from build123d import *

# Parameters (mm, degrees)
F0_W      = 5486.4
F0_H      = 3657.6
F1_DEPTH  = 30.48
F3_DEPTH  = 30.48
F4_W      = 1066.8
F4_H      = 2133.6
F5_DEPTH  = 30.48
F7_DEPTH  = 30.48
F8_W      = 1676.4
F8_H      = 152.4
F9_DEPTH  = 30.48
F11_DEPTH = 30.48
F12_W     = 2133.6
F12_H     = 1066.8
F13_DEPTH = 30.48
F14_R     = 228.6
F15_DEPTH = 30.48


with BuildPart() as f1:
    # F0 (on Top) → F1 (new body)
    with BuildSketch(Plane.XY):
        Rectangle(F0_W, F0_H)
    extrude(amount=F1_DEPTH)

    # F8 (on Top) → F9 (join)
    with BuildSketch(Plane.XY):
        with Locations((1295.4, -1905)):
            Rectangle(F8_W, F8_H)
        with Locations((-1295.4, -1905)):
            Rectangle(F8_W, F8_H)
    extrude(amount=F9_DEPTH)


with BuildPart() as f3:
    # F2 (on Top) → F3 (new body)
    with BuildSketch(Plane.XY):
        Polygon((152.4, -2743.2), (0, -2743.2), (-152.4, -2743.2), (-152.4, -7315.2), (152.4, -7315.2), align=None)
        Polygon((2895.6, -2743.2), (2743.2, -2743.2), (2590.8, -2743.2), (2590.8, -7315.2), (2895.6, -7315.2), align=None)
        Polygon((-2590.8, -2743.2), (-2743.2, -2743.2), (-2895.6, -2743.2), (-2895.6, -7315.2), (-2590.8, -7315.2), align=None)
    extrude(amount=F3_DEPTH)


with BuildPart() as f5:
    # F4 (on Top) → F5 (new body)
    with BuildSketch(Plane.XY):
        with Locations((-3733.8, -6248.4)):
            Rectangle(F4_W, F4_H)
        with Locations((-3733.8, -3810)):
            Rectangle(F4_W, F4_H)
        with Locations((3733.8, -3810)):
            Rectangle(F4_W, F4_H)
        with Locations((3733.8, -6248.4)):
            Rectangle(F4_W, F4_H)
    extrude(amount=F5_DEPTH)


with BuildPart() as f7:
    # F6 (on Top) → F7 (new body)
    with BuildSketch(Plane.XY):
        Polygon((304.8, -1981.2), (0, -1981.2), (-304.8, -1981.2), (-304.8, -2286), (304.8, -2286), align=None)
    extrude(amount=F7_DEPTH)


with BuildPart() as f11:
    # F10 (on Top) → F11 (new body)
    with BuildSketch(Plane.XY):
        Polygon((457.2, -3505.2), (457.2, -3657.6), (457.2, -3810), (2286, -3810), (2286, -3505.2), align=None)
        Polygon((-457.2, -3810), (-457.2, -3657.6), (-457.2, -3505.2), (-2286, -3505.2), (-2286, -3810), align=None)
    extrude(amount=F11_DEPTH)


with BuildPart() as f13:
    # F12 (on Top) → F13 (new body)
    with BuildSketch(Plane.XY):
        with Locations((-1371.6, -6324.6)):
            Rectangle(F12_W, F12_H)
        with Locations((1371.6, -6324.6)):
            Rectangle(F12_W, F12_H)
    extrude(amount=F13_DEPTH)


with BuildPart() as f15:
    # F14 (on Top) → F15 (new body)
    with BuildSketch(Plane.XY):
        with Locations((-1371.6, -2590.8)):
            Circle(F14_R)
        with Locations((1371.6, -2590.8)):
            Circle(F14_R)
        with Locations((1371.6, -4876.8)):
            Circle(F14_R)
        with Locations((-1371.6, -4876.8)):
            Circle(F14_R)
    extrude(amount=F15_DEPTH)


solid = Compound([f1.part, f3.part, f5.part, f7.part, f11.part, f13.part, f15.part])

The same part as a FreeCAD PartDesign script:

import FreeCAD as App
import Part
import Sketcher
from FreeCAD import Vector
Q = App.Units.Quantity


def add_polygon(sketch, points):
    """Adds a closed chain of lines whose ends are joined by coincident constraints."""
    first, n = sketch.GeometryCount, len(points)
    for a, b in zip(points, points[1:] + points[:1]):
        sketch.addGeometry(Part.LineSegment(App.Vector(*a, 0), App.Vector(*b, 0)), False)
    for i in range(n):
        sketch.addConstraint(Sketcher.Constraint("Coincident", first + i, 2, first + (i + 1) % n, 1))

doc = App.newDocument("Part")
body = doc.addObject("PartDesign::Body", "Body")

# Sketch on XY plane
sketch1 = body.newObject("Sketcher::SketchObject", "Sketch")
sketch1.AttachmentSupport = (doc.getObject("XY_Plane"), [""])
sketch1.MapMode = "FlatFace"
add_polygon(sketch1, [(-2743, 1829), (-2743, -1829), (2743, -1829), (2743, 1829)])  # lines 0-3
sketch1.addConstraint(Sketcher.Constraint("Vertical", 0))
sketch1.addConstraint(Sketcher.Constraint("Horizontal", 1))
sketch1.addConstraint(Sketcher.Constraint("Vertical", 2))
sketch1.addConstraint(Sketcher.Constraint("Horizontal", 3))
sketch1.addConstraint(Sketcher.Constraint("Symmetric", 0, 2, 2, 2, -1, 1))
sketch1.addConstraint(Sketcher.Constraint("DistanceX", 1, 1, 1, 2, Q("216 in")))
sketch1.addConstraint(Sketcher.Constraint("DistanceY", 0, 2, 0, 1, Q("144 in")))
pad1 = body.newObject("PartDesign::Pad", "Pad")
pad1.Profile = sketch1
pad1.Length = Q("1.2 in")

# Sketch on XY plane
sketch2 = body.newObject("Sketcher::SketchObject", "Sketch001")
sketch2.AttachmentSupport = (doc.getObject("XY_Plane"), [""])
sketch2.MapMode = "FlatFace"
add_polygon(sketch2, [(457, -1829), (457, -1981), (2134, -1981), (2134, -1829)])  # lines 0-3
add_polygon(sketch2, [(-2134, -1829), (-2134, -1981), (-457, -1981), (-457, -1829)])  # lines 4-7
sketch2.addConstraint(Sketcher.Constraint("Vertical", 0))
sketch2.addConstraint(Sketcher.Constraint("Horizontal", 1))
sketch2.addConstraint(Sketcher.Constraint("Vertical", 2))
sketch2.addConstraint(Sketcher.Constraint("Horizontal", 3))
sketch2.addConstraint(Sketcher.Constraint("Vertical", 4))
sketch2.addConstraint(Sketcher.Constraint("Horizontal", 5))
sketch2.addConstraint(Sketcher.Constraint("Vertical", 6))
sketch2.addConstraint(Sketcher.Constraint("Horizontal", 7))
sketch2.addConstraint(Sketcher.Constraint("Symmetric", 1, 2, 4, 2, -2))
sketch2.addConstraint(Sketcher.Constraint("Symmetric", 3, 2, 6, 2, -2))
sketch2.addConstraint(Sketcher.Constraint("DistanceX", 1, 1, 1, 2, Q("66 in")))
sketch2.addConstraint(Sketcher.Constraint("DistanceY", 0, 2, 0, 1, Q("6 in")))
sketch2.addConstraint(Sketcher.Constraint("DistanceX", -1, 1, 0, 2, Q("18 in")))
sketch2.addConstraint(Sketcher.Constraint("DistanceY", 0, 2, -1, 1, Q("78 in")))
pad2 = body.newObject("PartDesign::Pad", "Pad001")
pad2.Profile = sketch2
pad2.Length = Q("1.2 in")
body2 = doc.addObject("PartDesign::Body", "Body001")
body2.AllowCompound = True

# Sketch on XY plane
sketch3 = body2.newObject("Sketcher::SketchObject", "Sketch002")
sketch3.AttachmentSupport = (doc.getObject("XY_Plane001"), [""])
sketch3.MapMode = "FlatFace"
add_polygon(sketch3, [(152, -2743), (-152, -2743), (-152, -7315), (152, -7315)])  # lines 0-3
add_polygon(sketch3, [(2896, -2743), (2591, -2743), (2591, -7315), (2896, -7315)])  # lines 4-7
add_polygon(sketch3, [(-2591, -2743), (-2896, -2743), (-2896, -7315), (-2591, -7315)])  # lines 8-11
sketch3.addConstraint(Sketcher.Constraint("Horizontal", 0))
sketch3.addConstraint(Sketcher.Constraint("Vertical", 1))
sketch3.addConstraint(Sketcher.Constraint("Horizontal", 2))
sketch3.addConstraint(Sketcher.Constraint("Vertical", 3))
sketch3.addConstraint(Sketcher.Constraint("Horizontal", 4))
sketch3.addConstraint(Sketcher.Constraint("Vertical", 5))
sketch3.addConstraint(Sketcher.Constraint("Horizontal", 6))
sketch3.addConstraint(Sketcher.Constraint("Vertical", 7))
sketch3.addConstraint(Sketcher.Constraint("Horizontal", 8))
sketch3.addConstraint(Sketcher.Constraint("Vertical", 9))
sketch3.addConstraint(Sketcher.Constraint("Horizontal", 10))
sketch3.addConstraint(Sketcher.Constraint("Vertical", 11))
sketch3.addConstraint(Sketcher.Constraint("Symmetric", 7, 2, 8, 2, -2))
sketch3.addConstraint(Sketcher.Constraint("Symmetric", 5, 2, 10, 2, -2))
sketch3.addConstraint(Sketcher.Constraint("Horizontal", 3, 2, 4, 2))
sketch3.addConstraint(Sketcher.Constraint("Horizontal", 2, 2, 5, 2))
sketch3.addConstraint(Sketcher.Constraint("Equal", 2, 4))
sketch3.addConstraint(Sketcher.Constraint("DistanceX", 0, 2, 0, 1, Q("12 in")))
sketch3.addConstraint(Sketcher.Constraint("DistanceY", 1, 2, 1, 1, Q("180 in")))
sketch3.addConstraint(Sketcher.Constraint("DistanceX", 0, 2, -1, 1, Q("6 in")))
sketch3.addConstraint(Sketcher.Constraint("DistanceY", 0, 2, -1, 1, Q("108 in")))
sketch3.addConstraint(Sketcher.Constraint("DistanceX", -1, 1, 4, 2, Q("102 in")))
pad3 = body2.newObject("PartDesign::Pad", "Pad002")
pad3.Profile = sketch3
pad3.Length = Q("1.2 in")
body3 = doc.addObject("PartDesign::Body", "Body002")
body3.AllowCompound = True

# Sketch on XY plane
sketch4 = body3.newObject("Sketcher::SketchObject", "Sketch003")
sketch4.AttachmentSupport = (doc.getObject("XY_Plane002"), [""])
sketch4.MapMode = "FlatFace"
add_polygon(sketch4, [(-4267, -5182), (-4267, -7315), (-3200, -7315), (-3200, -5182)])  # lines 0-3
add_polygon(sketch4, [(-4267, -2743), (-4267, -4877), (-3200, -4877), (-3200, -2743)])  # lines 4-7
add_polygon(sketch4, [(3200, -2743), (3200, -4877), (4267, -4877), (4267, -2743)])  # lines 8-11
add_polygon(sketch4, [(3200, -5182), (3200, -7315), (4267, -7315), (4267, -5182)])  # lines 12-15
sketch4.addConstraint(Sketcher.Constraint("Vertical", 0))
sketch4.addConstraint(Sketcher.Constraint("Horizontal", 1))
sketch4.addConstraint(Sketcher.Constraint("Vertical", 2))
sketch4.addConstraint(Sketcher.Constraint("Horizontal", 3))
sketch4.addConstraint(Sketcher.Constraint("Vertical", 4))
sketch4.addConstraint(Sketcher.Constraint("Horizontal", 5))
sketch4.addConstraint(Sketcher.Constraint("Vertical", 6))
sketch4.addConstraint(Sketcher.Constraint("Horizontal", 7))
sketch4.addConstraint(Sketcher.Constraint("Vertical", 8))
sketch4.addConstraint(Sketcher.Constraint("Horizontal", 9))
sketch4.addConstraint(Sketcher.Constraint("Vertical", 10))
sketch4.addConstraint(Sketcher.Constraint("Horizontal", 11))
sketch4.addConstraint(Sketcher.Constraint("Vertical", 12))
sketch4.addConstraint(Sketcher.Constraint("Horizontal", 13))
sketch4.addConstraint(Sketcher.Constraint("Vertical", 14))
sketch4.addConstraint(Sketcher.Constraint("Horizontal", 15))
sketch4.addConstraint(Sketcher.Constraint("Symmetric", 5, 2, 8, 2, -2))
sketch4.addConstraint(Sketcher.Constraint("Symmetric", 7, 2, 10, 2, -2))
sketch4.addConstraint(Sketcher.Constraint("Symmetric", 1, 2, 12, 2, -2))
sketch4.addConstraint(Sketcher.Constraint("Symmetric", 3, 2, 14, 2, -2))
sketch4.addConstraint(Sketcher.Constraint("Vertical", 3, 2, 4, 2))
sketch4.addConstraint(Sketcher.Constraint("Vertical", 2, 2, 5, 2))
sketch4.addConstraint(Sketcher.Constraint("Equal", 2, 4))
sketch4.addConstraint(Sketcher.Constraint("DistanceX", 1, 1, 1, 2, Q("42 in")))
sketch4.addConstraint(Sketcher.Constraint("DistanceY", 0, 2, 0, 1, Q("84 in")))
sketch4.addConstraint(Sketcher.Constraint("DistanceX", 0, 2, -1, 1, Q("168 in")))
sketch4.addConstraint(Sketcher.Constraint("DistanceY", 0, 2, -1, 1, Q("288 in")))
sketch4.addConstraint(Sketcher.Constraint("DistanceY", 4, 2, -1, 1, Q("192 in")))
pad4 = body3.newObject("PartDesign::Pad", "Pad003")
pad4.Profile = sketch4
pad4.Length = Q("1.2 in")
body4 = doc.addObject("PartDesign::Body", "Body003")

# Sketch on XY plane
sketch5 = body4.newObject("Sketcher::SketchObject", "Sketch004")
sketch5.AttachmentSupport = (doc.getObject("XY_Plane003"), [""])
sketch5.MapMode = "FlatFace"
add_polygon(sketch5, [(305, -1981), (-305, -1981), (-305, -2286), (305, -2286)])  # lines 0-3
sketch5.addConstraint(Sketcher.Constraint("Horizontal", 0))
sketch5.addConstraint(Sketcher.Constraint("Vertical", 1))
sketch5.addConstraint(Sketcher.Constraint("Horizontal", 2))
sketch5.addConstraint(Sketcher.Constraint("Vertical", 3))
sketch5.addConstraint(Sketcher.Constraint("DistanceX", 0, 2, 0, 1, Q("24 in")))
sketch5.addConstraint(Sketcher.Constraint("DistanceY", 1, 2, 1, 1, Q("12 in")))
sketch5.addConstraint(Sketcher.Constraint("DistanceX", 0, 2, -1, 1, Q("12 in")))
sketch5.addConstraint(Sketcher.Constraint("DistanceY", 0, 2, -1, 1, Q("78 in")))
pad5 = body4.newObject("PartDesign::Pad", "Pad004")
pad5.Profile = sketch5
pad5.Length = Q("1.2 in")
body5 = doc.addObject("PartDesign::Body", "Body004")
body5.AllowCompound = True

# Sketch on XY plane
sketch6 = body5.newObject("Sketcher::SketchObject", "Sketch005")
sketch6.AttachmentSupport = (doc.getObject("XY_Plane004"), [""])
sketch6.MapMode = "FlatFace"
add_polygon(sketch6, [(457, -3505), (457, -3810), (2286, -3810), (2286, -3505)])  # lines 0-3
add_polygon(sketch6, [(-457, -3810), (-457, -3505), (-2286, -3505), (-2286, -3810)])  # lines 4-7
sketch6.addConstraint(Sketcher.Constraint("Vertical", 0))
sketch6.addConstraint(Sketcher.Constraint("Horizontal", 1))
sketch6.addConstraint(Sketcher.Constraint("Vertical", 2))
sketch6.addConstraint(Sketcher.Constraint("Horizontal", 3))
sketch6.addConstraint(Sketcher.Constraint("Vertical", 4))
sketch6.addConstraint(Sketcher.Constraint("Horizontal", 5))
sketch6.addConstraint(Sketcher.Constraint("Vertical", 6))
sketch6.addConstraint(Sketcher.Constraint("Horizontal", 7))
sketch6.addConstraint(Sketcher.Constraint("Symmetric", 3, 2, 4, 2, -2))
sketch6.addConstraint(Sketcher.Constraint("Symmetric", 1, 2, 6, 2, -2))
sketch6.addConstraint(Sketcher.Constraint("DistanceX", 1, 1, 1, 2, Q("72 in")))
sketch6.addConstraint(Sketcher.Constraint("DistanceY", 0, 2, 0, 1, Q("12 in")))
sketch6.addConstraint(Sketcher.Constraint("DistanceX", -1, 1, 0, 2, Q("18 in")))
sketch6.addConstraint(Sketcher.Constraint("DistanceY", 0, 2, -1, 1, Q("150 in")))
pad6 = body5.newObject("PartDesign::Pad", "Pad005")
pad6.Profile = sketch6
pad6.Length = Q("1.2 in")
body6 = doc.addObject("PartDesign::Body", "Body005")
body6.AllowCompound = True

# Sketch on XY plane
sketch7 = body6.newObject("Sketcher::SketchObject", "Sketch006")
sketch7.AttachmentSupport = (doc.getObject("XY_Plane005"), [""])
sketch7.MapMode = "FlatFace"
add_polygon(sketch7, [(-2438, -5791), (-2438, -6858), (-305, -6858), (-305, -5791)])  # lines 0-3
add_polygon(sketch7, [(305, -5791), (305, -6858), (2438, -6858), (2438, -5791)])  # lines 4-7
sketch7.addConstraint(Sketcher.Constraint("Vertical", 0))
sketch7.addConstraint(Sketcher.Constraint("Horizontal", 1))
sketch7.addConstraint(Sketcher.Constraint("Vertical", 2))
sketch7.addConstraint(Sketcher.Constraint("Horizontal", 3))
sketch7.addConstraint(Sketcher.Constraint("Vertical", 4))
sketch7.addConstraint(Sketcher.Constraint("Horizontal", 5))
sketch7.addConstraint(Sketcher.Constraint("Vertical", 6))
sketch7.addConstraint(Sketcher.Constraint("Horizontal", 7))
sketch7.addConstraint(Sketcher.Constraint("Symmetric", 1, 2, 4, 2, -2))
sketch7.addConstraint(Sketcher.Constraint("Symmetric", 3, 2, 6, 2, -2))
sketch7.addConstraint(Sketcher.Constraint("DistanceX", 1, 1, 1, 2, Q("84 in")))
sketch7.addConstraint(Sketcher.Constraint("DistanceY", 0, 2, 0, 1, Q("42 in")))
sketch7.addConstraint(Sketcher.Constraint("DistanceX", 0, 2, -1, 1, Q("96 in")))
sketch7.addConstraint(Sketcher.Constraint("DistanceY", 0, 2, -1, 1, Q("270 in")))
pad7 = body6.newObject("PartDesign::Pad", "Pad006")
pad7.Profile = sketch7
pad7.Length = Q("1.2 in")
body7 = doc.addObject("PartDesign::Body", "Body006")
body7.AllowCompound = True

# Sketch on XY plane
sketch8 = body7.newObject("Sketcher::SketchObject", "Sketch007")
sketch8.AttachmentSupport = (doc.getObject("XY_Plane006"), [""])
sketch8.MapMode = "FlatFace"
sketch8.addGeometry(Part.Circle(Vector(-1372, -2591, 0), Vector(0, 0, 1), 229), False)
sketch8.addGeometry(Part.Circle(Vector(1372, -2591, 0), Vector(0, 0, 1), 229), False)
sketch8.addGeometry(Part.Circle(Vector(1372, -4877, 0), Vector(0, 0, 1), 229), False)
sketch8.addGeometry(Part.Circle(Vector(-1372, -4877, 0), Vector(0, 0, 1), 229), False)
sketch8.addConstraint(Sketcher.Constraint("Equal", 0, 1))
sketch8.addConstraint(Sketcher.Constraint("Equal", 1, 2))
sketch8.addConstraint(Sketcher.Constraint("Equal", 2, 3))
sketch8.addConstraint(Sketcher.Constraint("Symmetric", 0, 3, 1, 3, -2))
sketch8.addConstraint(Sketcher.Constraint("Symmetric", 2, 3, 3, 3, -2))
sketch8.addConstraint(Sketcher.Constraint("Vertical", 1, 3, 2, 3))
sketch8.addConstraint(Sketcher.Constraint("Diameter", 0, Q("18 in")))
sketch8.addConstraint(Sketcher.Constraint("DistanceX", 0, 3, -1, 1, Q("54 in")))
sketch8.addConstraint(Sketcher.Constraint("DistanceY", 0, 3, -1, 1, Q("102 in")))
sketch8.addConstraint(Sketcher.Constraint("DistanceY", 2, 3, -1, 1, Q("192 in")))
pad8 = body7.newObject("PartDesign::Pad", "Pad007")
pad8.Profile = sketch8
pad8.Length = Q("1.2 in")

doc.recompute()
